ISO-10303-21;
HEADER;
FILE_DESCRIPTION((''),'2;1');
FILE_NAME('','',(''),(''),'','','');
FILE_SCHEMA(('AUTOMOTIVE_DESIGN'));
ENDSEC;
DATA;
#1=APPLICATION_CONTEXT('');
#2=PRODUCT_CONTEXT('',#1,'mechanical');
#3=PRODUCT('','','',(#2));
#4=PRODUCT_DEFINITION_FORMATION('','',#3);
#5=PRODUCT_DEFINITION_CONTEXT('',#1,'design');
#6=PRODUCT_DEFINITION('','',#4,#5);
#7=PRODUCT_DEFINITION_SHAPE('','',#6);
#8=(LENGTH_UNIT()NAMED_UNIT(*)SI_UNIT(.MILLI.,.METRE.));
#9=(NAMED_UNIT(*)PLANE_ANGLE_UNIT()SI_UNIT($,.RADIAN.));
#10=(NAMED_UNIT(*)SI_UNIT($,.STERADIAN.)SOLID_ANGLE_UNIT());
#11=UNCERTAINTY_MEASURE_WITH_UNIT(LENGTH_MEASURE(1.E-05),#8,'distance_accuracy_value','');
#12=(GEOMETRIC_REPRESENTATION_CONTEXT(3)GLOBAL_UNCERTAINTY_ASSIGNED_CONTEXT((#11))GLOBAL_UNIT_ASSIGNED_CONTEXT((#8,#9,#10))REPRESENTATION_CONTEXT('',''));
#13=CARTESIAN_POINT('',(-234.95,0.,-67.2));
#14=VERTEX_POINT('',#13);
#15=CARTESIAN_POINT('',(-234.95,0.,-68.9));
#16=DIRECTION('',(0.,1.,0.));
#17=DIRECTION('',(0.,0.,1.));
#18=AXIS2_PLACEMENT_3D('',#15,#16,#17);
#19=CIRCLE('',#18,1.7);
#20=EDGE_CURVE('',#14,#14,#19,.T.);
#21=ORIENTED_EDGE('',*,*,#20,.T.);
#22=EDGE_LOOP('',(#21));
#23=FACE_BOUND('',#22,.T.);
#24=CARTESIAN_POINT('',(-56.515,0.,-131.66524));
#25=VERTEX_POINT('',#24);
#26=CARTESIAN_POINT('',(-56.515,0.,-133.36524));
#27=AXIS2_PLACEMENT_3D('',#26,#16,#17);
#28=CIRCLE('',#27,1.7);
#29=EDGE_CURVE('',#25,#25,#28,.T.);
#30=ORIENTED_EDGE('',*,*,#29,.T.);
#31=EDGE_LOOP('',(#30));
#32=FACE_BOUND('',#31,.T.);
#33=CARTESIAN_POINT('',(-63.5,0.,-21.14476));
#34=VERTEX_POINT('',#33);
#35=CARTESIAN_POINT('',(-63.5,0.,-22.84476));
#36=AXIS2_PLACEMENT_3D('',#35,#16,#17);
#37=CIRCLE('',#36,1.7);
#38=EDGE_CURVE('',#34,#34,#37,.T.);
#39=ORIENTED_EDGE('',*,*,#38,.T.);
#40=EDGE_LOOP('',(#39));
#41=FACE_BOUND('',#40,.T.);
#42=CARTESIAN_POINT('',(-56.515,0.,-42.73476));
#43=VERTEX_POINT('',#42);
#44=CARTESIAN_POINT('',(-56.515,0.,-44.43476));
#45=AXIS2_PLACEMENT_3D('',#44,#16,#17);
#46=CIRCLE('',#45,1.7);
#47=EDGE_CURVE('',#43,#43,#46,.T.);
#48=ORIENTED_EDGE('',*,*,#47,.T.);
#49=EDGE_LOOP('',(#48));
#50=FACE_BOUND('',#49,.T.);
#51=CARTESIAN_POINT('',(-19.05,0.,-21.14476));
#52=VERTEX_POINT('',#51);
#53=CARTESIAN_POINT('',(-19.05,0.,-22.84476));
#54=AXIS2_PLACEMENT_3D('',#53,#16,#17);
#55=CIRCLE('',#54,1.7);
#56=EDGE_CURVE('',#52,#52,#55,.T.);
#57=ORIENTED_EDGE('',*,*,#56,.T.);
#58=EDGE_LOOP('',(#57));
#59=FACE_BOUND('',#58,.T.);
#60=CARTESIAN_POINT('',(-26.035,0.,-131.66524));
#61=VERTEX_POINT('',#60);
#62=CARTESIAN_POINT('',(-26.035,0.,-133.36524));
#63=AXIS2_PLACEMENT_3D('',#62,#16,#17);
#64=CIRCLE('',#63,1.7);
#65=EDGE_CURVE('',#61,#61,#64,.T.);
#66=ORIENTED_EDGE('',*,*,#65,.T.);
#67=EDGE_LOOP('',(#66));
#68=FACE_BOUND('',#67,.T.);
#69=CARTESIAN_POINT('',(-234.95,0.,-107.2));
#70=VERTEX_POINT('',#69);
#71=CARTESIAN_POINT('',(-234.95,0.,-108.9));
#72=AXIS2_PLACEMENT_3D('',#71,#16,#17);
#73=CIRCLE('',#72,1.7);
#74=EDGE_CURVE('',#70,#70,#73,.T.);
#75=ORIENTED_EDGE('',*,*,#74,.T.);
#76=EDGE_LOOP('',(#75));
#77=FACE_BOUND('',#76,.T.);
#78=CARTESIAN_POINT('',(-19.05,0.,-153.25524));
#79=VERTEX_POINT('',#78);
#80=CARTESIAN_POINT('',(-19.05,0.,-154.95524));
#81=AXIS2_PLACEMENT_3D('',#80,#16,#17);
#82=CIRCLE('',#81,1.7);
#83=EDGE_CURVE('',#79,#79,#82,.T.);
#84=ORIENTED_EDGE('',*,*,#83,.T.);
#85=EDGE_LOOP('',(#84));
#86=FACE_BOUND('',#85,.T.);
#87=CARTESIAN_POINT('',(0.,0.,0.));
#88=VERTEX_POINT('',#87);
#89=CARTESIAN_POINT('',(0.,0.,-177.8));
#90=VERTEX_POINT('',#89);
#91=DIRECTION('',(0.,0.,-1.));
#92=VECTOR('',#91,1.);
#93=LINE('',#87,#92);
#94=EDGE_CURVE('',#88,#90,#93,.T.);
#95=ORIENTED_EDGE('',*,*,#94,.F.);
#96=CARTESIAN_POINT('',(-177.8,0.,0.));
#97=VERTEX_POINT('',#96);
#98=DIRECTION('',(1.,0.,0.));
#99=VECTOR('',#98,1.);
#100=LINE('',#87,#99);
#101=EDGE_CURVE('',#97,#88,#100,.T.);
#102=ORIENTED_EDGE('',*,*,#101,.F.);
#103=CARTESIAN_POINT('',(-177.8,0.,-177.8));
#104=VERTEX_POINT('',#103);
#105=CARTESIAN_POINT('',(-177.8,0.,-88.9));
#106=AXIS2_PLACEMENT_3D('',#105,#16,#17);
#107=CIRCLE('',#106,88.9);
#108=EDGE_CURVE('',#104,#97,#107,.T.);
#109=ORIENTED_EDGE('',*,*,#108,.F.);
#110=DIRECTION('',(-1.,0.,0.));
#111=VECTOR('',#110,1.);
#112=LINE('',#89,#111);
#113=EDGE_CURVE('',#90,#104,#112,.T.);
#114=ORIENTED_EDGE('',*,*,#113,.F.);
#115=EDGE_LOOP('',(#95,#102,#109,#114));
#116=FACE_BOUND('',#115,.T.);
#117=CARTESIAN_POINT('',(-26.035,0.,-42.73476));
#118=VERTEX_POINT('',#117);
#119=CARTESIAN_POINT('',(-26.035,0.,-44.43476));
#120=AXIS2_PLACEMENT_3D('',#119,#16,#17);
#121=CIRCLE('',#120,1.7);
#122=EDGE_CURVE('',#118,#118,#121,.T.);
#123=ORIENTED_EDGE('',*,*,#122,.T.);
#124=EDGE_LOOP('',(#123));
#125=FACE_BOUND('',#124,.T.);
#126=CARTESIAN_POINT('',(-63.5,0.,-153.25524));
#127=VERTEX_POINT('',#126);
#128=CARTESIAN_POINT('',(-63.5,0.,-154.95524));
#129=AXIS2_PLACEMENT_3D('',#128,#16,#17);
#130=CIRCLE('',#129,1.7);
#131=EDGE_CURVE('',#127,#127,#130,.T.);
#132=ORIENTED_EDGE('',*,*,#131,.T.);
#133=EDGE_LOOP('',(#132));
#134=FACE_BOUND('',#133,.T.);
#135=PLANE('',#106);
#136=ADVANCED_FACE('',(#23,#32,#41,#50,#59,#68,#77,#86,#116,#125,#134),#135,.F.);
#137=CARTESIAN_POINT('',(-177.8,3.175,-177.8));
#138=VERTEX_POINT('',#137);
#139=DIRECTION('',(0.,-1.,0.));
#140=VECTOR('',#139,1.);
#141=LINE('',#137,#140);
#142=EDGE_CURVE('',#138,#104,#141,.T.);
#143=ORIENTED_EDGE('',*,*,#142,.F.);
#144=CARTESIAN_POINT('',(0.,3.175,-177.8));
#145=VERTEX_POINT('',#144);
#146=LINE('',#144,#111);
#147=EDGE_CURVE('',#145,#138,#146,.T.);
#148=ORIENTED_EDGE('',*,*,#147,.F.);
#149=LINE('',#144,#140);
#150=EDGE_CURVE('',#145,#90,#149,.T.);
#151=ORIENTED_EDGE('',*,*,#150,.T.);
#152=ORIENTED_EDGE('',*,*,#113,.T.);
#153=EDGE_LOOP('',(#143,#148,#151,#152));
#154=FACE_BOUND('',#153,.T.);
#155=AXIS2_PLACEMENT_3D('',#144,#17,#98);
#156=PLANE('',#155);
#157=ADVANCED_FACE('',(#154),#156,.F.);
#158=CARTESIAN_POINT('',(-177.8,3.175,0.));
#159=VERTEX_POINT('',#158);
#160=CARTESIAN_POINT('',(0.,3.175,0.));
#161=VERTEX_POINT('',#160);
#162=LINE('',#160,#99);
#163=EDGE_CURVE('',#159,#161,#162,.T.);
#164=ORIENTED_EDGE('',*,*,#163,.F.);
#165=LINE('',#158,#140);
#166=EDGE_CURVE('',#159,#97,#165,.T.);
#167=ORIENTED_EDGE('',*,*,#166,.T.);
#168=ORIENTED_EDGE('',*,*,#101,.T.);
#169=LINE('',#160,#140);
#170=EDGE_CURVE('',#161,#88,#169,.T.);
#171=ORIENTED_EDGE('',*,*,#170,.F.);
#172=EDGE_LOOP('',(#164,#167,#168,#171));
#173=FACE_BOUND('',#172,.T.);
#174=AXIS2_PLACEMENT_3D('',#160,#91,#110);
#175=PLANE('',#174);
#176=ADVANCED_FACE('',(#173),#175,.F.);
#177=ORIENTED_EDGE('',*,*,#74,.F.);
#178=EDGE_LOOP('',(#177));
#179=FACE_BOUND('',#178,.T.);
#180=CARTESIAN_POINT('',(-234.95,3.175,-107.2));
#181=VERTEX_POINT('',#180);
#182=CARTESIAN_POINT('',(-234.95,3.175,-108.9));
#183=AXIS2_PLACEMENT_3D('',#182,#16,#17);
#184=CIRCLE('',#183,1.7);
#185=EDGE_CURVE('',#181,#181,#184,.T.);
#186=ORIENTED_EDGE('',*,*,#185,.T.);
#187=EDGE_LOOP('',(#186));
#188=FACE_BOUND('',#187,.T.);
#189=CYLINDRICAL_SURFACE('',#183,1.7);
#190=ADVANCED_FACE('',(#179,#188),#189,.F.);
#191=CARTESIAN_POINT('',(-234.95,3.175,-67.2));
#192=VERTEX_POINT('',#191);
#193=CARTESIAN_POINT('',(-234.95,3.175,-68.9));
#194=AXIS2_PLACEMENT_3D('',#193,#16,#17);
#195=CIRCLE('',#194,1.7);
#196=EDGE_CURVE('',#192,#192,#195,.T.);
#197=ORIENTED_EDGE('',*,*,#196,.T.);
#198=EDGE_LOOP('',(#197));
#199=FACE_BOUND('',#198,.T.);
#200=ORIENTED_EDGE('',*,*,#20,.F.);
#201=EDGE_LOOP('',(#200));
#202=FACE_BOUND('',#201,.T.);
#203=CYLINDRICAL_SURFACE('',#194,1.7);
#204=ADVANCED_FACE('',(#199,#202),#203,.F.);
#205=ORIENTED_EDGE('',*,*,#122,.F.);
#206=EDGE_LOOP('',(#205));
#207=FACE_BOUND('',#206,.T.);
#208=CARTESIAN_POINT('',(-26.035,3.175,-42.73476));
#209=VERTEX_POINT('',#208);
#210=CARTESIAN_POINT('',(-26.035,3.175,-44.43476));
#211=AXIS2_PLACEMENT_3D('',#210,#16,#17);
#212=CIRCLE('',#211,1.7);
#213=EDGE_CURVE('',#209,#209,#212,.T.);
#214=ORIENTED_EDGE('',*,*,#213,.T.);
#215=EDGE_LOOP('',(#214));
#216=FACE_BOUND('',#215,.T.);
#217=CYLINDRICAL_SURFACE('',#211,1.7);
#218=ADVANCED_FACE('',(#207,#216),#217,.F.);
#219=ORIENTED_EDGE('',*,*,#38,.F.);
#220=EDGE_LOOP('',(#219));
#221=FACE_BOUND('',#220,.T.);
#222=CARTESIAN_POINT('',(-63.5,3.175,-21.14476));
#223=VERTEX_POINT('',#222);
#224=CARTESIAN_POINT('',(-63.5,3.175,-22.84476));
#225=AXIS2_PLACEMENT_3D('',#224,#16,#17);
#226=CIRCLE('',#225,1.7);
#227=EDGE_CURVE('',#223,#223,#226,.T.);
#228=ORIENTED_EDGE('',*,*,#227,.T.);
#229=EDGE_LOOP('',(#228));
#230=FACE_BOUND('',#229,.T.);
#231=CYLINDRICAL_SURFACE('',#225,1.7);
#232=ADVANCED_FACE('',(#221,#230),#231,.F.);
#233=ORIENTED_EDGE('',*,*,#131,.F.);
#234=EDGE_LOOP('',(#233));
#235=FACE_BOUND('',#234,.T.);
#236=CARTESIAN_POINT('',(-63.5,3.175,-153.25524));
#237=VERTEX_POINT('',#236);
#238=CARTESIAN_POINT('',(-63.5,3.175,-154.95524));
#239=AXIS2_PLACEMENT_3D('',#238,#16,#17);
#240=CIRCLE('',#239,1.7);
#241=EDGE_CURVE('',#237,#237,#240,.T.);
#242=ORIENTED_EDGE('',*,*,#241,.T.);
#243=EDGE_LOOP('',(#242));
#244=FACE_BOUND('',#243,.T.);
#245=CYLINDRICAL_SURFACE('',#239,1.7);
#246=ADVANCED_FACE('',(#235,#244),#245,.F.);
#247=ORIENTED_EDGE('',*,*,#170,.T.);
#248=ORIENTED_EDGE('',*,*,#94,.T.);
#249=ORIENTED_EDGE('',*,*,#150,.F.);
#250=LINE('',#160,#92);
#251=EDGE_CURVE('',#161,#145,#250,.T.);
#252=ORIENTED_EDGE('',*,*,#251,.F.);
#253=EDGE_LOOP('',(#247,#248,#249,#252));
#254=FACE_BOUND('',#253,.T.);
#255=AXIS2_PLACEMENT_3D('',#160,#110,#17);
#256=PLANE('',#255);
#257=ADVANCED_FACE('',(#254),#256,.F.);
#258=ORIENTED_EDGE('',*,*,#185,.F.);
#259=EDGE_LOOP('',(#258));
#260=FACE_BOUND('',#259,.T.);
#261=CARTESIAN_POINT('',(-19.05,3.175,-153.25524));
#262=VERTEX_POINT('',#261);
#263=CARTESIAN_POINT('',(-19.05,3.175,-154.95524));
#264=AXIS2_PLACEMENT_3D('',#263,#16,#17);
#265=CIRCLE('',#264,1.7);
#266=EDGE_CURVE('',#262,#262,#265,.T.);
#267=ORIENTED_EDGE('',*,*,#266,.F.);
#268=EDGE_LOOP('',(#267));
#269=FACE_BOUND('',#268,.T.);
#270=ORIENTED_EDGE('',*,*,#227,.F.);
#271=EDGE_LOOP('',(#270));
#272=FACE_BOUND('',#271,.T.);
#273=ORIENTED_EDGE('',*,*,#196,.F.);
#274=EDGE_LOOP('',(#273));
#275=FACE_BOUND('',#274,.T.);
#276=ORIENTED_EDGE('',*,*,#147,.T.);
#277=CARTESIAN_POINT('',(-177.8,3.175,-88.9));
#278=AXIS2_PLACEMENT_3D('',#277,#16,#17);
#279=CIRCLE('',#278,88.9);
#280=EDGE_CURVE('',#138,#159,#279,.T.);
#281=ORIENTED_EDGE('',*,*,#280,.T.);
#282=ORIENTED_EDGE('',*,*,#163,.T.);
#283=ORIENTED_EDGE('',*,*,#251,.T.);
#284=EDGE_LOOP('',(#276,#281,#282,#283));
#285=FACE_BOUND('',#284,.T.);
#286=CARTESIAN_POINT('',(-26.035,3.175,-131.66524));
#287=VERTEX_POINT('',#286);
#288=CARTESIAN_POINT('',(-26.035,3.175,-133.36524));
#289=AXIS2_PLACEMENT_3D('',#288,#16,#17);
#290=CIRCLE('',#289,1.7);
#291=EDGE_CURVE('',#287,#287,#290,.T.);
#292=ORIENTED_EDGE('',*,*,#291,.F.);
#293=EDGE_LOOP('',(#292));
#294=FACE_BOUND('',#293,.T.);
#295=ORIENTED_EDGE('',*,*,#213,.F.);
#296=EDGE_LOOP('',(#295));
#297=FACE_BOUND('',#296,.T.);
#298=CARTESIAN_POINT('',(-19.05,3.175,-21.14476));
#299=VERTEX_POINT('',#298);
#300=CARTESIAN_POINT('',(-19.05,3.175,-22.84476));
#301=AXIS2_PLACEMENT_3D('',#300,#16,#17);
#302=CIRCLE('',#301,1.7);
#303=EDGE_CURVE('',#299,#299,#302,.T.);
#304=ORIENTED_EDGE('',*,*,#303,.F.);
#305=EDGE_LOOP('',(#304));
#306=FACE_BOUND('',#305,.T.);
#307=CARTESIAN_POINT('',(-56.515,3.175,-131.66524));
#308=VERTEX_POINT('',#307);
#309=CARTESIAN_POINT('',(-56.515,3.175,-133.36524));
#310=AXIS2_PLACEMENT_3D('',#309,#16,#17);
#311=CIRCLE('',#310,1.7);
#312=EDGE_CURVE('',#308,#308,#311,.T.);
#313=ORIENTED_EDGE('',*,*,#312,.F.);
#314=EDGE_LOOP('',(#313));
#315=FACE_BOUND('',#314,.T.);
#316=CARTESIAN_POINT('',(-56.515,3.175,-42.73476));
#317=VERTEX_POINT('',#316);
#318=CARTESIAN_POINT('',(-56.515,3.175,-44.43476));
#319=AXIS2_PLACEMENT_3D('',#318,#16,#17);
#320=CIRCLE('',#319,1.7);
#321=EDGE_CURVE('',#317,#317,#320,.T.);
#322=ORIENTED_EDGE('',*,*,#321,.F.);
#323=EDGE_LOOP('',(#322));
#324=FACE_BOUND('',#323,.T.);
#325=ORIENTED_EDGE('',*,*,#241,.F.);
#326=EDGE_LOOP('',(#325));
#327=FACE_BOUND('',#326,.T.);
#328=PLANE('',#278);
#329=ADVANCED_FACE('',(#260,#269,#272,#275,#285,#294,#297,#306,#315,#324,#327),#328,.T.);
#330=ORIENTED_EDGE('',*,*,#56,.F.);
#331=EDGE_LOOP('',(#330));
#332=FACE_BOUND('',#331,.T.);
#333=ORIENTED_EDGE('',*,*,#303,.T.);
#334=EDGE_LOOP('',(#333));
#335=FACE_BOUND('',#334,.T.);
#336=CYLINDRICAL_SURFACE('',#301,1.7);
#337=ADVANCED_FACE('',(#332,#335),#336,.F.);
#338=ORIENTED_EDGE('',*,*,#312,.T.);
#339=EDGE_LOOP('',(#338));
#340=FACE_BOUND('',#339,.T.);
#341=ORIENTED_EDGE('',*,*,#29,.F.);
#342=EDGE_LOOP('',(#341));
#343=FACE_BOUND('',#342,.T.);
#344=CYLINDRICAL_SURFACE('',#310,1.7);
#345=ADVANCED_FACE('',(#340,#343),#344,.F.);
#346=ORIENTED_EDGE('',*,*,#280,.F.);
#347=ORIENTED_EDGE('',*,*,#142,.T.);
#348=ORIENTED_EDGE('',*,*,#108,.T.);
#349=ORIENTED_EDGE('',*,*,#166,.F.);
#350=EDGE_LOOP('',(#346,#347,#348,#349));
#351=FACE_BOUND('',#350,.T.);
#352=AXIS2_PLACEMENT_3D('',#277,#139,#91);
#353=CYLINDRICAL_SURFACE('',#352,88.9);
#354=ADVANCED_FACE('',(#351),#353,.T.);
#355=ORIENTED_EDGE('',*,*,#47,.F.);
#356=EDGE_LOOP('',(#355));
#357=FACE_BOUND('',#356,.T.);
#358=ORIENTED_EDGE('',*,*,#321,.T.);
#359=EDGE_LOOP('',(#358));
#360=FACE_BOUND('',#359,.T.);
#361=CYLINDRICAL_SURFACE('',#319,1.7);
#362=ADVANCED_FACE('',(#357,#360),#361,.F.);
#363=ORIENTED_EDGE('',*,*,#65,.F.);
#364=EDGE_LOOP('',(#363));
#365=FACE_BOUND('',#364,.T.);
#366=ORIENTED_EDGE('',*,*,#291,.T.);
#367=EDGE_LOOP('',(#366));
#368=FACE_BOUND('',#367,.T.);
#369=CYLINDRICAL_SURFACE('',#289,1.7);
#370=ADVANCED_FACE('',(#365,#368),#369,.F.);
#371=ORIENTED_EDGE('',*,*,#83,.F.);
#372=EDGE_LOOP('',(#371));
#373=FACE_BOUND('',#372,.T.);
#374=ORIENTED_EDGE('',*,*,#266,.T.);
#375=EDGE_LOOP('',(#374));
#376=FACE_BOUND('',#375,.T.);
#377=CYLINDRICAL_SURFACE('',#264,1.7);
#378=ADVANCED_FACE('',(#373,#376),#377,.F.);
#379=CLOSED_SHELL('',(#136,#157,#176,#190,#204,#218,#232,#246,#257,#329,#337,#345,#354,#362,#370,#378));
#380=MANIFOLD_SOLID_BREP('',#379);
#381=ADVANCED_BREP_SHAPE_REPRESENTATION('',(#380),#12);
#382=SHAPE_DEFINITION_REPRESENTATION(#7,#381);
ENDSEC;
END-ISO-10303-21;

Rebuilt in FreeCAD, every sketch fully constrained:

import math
import FreeCAD as App
import Part
import Sketcher
from FreeCAD import Vector
Q = App.Units.Quantity

doc = App.newDocument("Part")
body = doc.addObject("PartDesign::Body", "Body")

# Sketch on XZ plane
sketch1 = body.newObject("Sketcher::SketchObject", "Sketch")
sketch1.AttachmentSupport = (doc.getObject("XZ_Plane"), [""])
sketch1.MapMode = "FlatFace"
sketch1.addGeometry([
    Part.LineSegment(Vector(0, 0, 0), Vector(0, -177.8, 0)),
    Part.LineSegment(Vector(0, -177.8, 0), Vector(-177.8, -177.8, 0)),
    Part.ArcOfCircle(Part.Circle(Vector(-177.8, -88.9, 0), Vector(0, 0, 1), 88.9), math.radians(90), math.radians(270)),
    Part.LineSegment(Vector(-177.8, 0, 0), Vector(0, 0, 0)),
], False)
sketch1.addConstraint([
    Sketcher.Constraint("Coincident", 0, 2, 1, 1),
    Sketcher.Constraint("Tangent", 1, 2, 2, 2),
    Sketcher.Constraint("Tangent", 2, 1, 3, 1),
    Sketcher.Constraint("Coincident", 3, 2, 0, 1),
    Sketcher.Constraint("Vertical", 0),
    Sketcher.Constraint("Horizontal", 1),
    Sketcher.Constraint("Horizontal", 3),
    Sketcher.Constraint("Coincident", 3, 2, -1, 1),
    Sketcher.Constraint("Equal", 3, 0),
    Sketcher.Constraint("Radius", 2, Q("3.5 in")),
])
pad1 = body.newObject("PartDesign::Pad", "Pad")
pad1.Profile = sketch1
pad1.Length = Q("0.125 in")
pad1.Reversed = True

# Sketch on XZ plane
sketch2 = body.newObject("Sketcher::SketchObject", "Sketch001")
sketch2.AttachmentSupport = (doc.getObject("XZ_Plane"), [""])
sketch2.MapMode = "FlatFace"
sketch2.AttachmentOffset = App.Placement(Vector(0, 0, -0.125 * 25.4), App.Rotation())
sketch2.addGeometry([
    Part.Circle(Vector(-63.5, -154.95524, 0), Vector(0, 0, 1), 1.7),  # 0
    Part.Circle(Vector(-19.05, -154.95524, 0), Vector(0, 0, 1), 1.7),  # 1
    Part.Circle(Vector(-56.515, -133.36524, 0), Vector(0, 0, 1), 1.7),  # 2
    Part.Circle(Vector(-26.035, -133.36524, 0), Vector(0, 0, 1), 1.7),  # 3
    Part.Circle(Vector(-56.515, -44.43476, 0), Vector(0, 0, 1), 1.7),  # 4
    Part.Circle(Vector(-26.035, -44.43476, 0), Vector(0, 0, 1), 1.7),  # 5
    Part.Circle(Vector(-63.5, -22.84476, 0), Vector(0, 0, 1), 1.7),  # 6
    Part.Circle(Vector(-19.05, -22.84476, 0), Vector(0, 0, 1), 1.7),  # 7
    Part.Circle(Vector(-234.95, -108.9, 0), Vector(0, 0, 1), 1.7),  # 8
    Part.Circle(Vector(-234.95, -68.9, 0), Vector(0, 0, 1), 1.7),  # 9
], False)
sketch2.addConstraint([
    Sketcher.Constraint("Equal", 0, 1),
    Sketcher.Constraint("Equal", 1, 2),
    Sketcher.Constraint("Equal", 2, 3),
    Sketcher.Constraint("Equal", 3, 4),
    Sketcher.Constraint("Equal", 4, 5),
    Sketcher.Constraint("Equal", 5, 6),
    Sketcher.Constraint("Equal", 6, 7),
    Sketcher.Constraint("Equal", 7, 8),
    Sketcher.Constraint("Equal", 8, 9),
    Sketcher.Constraint("Horizontal", 0, 3, 1, 3),
    Sketcher.Constraint("Horizontal", 2, 3, 3, 3),
    Sketcher.Constraint("Horizontal", 4, 3, 5, 3),
    Sketcher.Constraint("Horizontal", 6, 3, 7, 3),
    Sketcher.Constraint("Vertical", 2, 3, 4, 3),
    Sketcher.Constraint("Vertical", 3, 3, 5, 3),
    Sketcher.Constraint("Vertical", 0, 3, 6, 3),
    Sketcher.Constraint("Vertical", 1, 3, 7, 3),
    Sketcher.Constraint("Vertical", 8, 3, 9, 3),
    Sketcher.Constraint("DistanceX", 0, 3, -1, 1, Q("2.5 in")),
    Sketcher.Constraint("DistanceX", 2, 3, 3, 3, Q("1.2 in")),
    Sketcher.Constraint("Diameter", 0, Q("3.4 mm")),
    Sketcher.Constraint("DistanceX", 1, 3, -1, 1, Q("0.75 in")),
    Sketcher.Constraint("DistanceX", 8, 3, -1, 1, Q("9.25 in")),
    Sketcher.Constraint("DistanceY", 0, 3, 2, 3, Q("0.85 in")),
    Sketcher.Constraint("DistanceY", 4, 3, 6, 3, Q("0.85 in")),
    Sketcher.Constraint("DistanceX", 2, 3, -1, 1, Q("2.225 in")),
    Sketcher.Constraint("DistanceY", 0, 3, -1, 1, Q("6.1006 in")),
    Sketcher.Constraint("DistanceY", 4, 3, -1, 1, Q("1.7494 in")),
    Sketcher.Constraint("DistanceY", 8, 3, -1, 1, Q("108.9 mm")),
    Sketcher.Constraint("DistanceY", 9, 3, -1, 1, Q("68.9 mm")),
])
doc.recompute()
hole = body.newObject("PartDesign::Hole", "Hole")
hole.Profile = sketch2
hole.ThreadType = "None"
hole.Diameter = 3.4
hole.DepthType = "ThroughAll"
hole.Reversed = True

doc.recompute()
